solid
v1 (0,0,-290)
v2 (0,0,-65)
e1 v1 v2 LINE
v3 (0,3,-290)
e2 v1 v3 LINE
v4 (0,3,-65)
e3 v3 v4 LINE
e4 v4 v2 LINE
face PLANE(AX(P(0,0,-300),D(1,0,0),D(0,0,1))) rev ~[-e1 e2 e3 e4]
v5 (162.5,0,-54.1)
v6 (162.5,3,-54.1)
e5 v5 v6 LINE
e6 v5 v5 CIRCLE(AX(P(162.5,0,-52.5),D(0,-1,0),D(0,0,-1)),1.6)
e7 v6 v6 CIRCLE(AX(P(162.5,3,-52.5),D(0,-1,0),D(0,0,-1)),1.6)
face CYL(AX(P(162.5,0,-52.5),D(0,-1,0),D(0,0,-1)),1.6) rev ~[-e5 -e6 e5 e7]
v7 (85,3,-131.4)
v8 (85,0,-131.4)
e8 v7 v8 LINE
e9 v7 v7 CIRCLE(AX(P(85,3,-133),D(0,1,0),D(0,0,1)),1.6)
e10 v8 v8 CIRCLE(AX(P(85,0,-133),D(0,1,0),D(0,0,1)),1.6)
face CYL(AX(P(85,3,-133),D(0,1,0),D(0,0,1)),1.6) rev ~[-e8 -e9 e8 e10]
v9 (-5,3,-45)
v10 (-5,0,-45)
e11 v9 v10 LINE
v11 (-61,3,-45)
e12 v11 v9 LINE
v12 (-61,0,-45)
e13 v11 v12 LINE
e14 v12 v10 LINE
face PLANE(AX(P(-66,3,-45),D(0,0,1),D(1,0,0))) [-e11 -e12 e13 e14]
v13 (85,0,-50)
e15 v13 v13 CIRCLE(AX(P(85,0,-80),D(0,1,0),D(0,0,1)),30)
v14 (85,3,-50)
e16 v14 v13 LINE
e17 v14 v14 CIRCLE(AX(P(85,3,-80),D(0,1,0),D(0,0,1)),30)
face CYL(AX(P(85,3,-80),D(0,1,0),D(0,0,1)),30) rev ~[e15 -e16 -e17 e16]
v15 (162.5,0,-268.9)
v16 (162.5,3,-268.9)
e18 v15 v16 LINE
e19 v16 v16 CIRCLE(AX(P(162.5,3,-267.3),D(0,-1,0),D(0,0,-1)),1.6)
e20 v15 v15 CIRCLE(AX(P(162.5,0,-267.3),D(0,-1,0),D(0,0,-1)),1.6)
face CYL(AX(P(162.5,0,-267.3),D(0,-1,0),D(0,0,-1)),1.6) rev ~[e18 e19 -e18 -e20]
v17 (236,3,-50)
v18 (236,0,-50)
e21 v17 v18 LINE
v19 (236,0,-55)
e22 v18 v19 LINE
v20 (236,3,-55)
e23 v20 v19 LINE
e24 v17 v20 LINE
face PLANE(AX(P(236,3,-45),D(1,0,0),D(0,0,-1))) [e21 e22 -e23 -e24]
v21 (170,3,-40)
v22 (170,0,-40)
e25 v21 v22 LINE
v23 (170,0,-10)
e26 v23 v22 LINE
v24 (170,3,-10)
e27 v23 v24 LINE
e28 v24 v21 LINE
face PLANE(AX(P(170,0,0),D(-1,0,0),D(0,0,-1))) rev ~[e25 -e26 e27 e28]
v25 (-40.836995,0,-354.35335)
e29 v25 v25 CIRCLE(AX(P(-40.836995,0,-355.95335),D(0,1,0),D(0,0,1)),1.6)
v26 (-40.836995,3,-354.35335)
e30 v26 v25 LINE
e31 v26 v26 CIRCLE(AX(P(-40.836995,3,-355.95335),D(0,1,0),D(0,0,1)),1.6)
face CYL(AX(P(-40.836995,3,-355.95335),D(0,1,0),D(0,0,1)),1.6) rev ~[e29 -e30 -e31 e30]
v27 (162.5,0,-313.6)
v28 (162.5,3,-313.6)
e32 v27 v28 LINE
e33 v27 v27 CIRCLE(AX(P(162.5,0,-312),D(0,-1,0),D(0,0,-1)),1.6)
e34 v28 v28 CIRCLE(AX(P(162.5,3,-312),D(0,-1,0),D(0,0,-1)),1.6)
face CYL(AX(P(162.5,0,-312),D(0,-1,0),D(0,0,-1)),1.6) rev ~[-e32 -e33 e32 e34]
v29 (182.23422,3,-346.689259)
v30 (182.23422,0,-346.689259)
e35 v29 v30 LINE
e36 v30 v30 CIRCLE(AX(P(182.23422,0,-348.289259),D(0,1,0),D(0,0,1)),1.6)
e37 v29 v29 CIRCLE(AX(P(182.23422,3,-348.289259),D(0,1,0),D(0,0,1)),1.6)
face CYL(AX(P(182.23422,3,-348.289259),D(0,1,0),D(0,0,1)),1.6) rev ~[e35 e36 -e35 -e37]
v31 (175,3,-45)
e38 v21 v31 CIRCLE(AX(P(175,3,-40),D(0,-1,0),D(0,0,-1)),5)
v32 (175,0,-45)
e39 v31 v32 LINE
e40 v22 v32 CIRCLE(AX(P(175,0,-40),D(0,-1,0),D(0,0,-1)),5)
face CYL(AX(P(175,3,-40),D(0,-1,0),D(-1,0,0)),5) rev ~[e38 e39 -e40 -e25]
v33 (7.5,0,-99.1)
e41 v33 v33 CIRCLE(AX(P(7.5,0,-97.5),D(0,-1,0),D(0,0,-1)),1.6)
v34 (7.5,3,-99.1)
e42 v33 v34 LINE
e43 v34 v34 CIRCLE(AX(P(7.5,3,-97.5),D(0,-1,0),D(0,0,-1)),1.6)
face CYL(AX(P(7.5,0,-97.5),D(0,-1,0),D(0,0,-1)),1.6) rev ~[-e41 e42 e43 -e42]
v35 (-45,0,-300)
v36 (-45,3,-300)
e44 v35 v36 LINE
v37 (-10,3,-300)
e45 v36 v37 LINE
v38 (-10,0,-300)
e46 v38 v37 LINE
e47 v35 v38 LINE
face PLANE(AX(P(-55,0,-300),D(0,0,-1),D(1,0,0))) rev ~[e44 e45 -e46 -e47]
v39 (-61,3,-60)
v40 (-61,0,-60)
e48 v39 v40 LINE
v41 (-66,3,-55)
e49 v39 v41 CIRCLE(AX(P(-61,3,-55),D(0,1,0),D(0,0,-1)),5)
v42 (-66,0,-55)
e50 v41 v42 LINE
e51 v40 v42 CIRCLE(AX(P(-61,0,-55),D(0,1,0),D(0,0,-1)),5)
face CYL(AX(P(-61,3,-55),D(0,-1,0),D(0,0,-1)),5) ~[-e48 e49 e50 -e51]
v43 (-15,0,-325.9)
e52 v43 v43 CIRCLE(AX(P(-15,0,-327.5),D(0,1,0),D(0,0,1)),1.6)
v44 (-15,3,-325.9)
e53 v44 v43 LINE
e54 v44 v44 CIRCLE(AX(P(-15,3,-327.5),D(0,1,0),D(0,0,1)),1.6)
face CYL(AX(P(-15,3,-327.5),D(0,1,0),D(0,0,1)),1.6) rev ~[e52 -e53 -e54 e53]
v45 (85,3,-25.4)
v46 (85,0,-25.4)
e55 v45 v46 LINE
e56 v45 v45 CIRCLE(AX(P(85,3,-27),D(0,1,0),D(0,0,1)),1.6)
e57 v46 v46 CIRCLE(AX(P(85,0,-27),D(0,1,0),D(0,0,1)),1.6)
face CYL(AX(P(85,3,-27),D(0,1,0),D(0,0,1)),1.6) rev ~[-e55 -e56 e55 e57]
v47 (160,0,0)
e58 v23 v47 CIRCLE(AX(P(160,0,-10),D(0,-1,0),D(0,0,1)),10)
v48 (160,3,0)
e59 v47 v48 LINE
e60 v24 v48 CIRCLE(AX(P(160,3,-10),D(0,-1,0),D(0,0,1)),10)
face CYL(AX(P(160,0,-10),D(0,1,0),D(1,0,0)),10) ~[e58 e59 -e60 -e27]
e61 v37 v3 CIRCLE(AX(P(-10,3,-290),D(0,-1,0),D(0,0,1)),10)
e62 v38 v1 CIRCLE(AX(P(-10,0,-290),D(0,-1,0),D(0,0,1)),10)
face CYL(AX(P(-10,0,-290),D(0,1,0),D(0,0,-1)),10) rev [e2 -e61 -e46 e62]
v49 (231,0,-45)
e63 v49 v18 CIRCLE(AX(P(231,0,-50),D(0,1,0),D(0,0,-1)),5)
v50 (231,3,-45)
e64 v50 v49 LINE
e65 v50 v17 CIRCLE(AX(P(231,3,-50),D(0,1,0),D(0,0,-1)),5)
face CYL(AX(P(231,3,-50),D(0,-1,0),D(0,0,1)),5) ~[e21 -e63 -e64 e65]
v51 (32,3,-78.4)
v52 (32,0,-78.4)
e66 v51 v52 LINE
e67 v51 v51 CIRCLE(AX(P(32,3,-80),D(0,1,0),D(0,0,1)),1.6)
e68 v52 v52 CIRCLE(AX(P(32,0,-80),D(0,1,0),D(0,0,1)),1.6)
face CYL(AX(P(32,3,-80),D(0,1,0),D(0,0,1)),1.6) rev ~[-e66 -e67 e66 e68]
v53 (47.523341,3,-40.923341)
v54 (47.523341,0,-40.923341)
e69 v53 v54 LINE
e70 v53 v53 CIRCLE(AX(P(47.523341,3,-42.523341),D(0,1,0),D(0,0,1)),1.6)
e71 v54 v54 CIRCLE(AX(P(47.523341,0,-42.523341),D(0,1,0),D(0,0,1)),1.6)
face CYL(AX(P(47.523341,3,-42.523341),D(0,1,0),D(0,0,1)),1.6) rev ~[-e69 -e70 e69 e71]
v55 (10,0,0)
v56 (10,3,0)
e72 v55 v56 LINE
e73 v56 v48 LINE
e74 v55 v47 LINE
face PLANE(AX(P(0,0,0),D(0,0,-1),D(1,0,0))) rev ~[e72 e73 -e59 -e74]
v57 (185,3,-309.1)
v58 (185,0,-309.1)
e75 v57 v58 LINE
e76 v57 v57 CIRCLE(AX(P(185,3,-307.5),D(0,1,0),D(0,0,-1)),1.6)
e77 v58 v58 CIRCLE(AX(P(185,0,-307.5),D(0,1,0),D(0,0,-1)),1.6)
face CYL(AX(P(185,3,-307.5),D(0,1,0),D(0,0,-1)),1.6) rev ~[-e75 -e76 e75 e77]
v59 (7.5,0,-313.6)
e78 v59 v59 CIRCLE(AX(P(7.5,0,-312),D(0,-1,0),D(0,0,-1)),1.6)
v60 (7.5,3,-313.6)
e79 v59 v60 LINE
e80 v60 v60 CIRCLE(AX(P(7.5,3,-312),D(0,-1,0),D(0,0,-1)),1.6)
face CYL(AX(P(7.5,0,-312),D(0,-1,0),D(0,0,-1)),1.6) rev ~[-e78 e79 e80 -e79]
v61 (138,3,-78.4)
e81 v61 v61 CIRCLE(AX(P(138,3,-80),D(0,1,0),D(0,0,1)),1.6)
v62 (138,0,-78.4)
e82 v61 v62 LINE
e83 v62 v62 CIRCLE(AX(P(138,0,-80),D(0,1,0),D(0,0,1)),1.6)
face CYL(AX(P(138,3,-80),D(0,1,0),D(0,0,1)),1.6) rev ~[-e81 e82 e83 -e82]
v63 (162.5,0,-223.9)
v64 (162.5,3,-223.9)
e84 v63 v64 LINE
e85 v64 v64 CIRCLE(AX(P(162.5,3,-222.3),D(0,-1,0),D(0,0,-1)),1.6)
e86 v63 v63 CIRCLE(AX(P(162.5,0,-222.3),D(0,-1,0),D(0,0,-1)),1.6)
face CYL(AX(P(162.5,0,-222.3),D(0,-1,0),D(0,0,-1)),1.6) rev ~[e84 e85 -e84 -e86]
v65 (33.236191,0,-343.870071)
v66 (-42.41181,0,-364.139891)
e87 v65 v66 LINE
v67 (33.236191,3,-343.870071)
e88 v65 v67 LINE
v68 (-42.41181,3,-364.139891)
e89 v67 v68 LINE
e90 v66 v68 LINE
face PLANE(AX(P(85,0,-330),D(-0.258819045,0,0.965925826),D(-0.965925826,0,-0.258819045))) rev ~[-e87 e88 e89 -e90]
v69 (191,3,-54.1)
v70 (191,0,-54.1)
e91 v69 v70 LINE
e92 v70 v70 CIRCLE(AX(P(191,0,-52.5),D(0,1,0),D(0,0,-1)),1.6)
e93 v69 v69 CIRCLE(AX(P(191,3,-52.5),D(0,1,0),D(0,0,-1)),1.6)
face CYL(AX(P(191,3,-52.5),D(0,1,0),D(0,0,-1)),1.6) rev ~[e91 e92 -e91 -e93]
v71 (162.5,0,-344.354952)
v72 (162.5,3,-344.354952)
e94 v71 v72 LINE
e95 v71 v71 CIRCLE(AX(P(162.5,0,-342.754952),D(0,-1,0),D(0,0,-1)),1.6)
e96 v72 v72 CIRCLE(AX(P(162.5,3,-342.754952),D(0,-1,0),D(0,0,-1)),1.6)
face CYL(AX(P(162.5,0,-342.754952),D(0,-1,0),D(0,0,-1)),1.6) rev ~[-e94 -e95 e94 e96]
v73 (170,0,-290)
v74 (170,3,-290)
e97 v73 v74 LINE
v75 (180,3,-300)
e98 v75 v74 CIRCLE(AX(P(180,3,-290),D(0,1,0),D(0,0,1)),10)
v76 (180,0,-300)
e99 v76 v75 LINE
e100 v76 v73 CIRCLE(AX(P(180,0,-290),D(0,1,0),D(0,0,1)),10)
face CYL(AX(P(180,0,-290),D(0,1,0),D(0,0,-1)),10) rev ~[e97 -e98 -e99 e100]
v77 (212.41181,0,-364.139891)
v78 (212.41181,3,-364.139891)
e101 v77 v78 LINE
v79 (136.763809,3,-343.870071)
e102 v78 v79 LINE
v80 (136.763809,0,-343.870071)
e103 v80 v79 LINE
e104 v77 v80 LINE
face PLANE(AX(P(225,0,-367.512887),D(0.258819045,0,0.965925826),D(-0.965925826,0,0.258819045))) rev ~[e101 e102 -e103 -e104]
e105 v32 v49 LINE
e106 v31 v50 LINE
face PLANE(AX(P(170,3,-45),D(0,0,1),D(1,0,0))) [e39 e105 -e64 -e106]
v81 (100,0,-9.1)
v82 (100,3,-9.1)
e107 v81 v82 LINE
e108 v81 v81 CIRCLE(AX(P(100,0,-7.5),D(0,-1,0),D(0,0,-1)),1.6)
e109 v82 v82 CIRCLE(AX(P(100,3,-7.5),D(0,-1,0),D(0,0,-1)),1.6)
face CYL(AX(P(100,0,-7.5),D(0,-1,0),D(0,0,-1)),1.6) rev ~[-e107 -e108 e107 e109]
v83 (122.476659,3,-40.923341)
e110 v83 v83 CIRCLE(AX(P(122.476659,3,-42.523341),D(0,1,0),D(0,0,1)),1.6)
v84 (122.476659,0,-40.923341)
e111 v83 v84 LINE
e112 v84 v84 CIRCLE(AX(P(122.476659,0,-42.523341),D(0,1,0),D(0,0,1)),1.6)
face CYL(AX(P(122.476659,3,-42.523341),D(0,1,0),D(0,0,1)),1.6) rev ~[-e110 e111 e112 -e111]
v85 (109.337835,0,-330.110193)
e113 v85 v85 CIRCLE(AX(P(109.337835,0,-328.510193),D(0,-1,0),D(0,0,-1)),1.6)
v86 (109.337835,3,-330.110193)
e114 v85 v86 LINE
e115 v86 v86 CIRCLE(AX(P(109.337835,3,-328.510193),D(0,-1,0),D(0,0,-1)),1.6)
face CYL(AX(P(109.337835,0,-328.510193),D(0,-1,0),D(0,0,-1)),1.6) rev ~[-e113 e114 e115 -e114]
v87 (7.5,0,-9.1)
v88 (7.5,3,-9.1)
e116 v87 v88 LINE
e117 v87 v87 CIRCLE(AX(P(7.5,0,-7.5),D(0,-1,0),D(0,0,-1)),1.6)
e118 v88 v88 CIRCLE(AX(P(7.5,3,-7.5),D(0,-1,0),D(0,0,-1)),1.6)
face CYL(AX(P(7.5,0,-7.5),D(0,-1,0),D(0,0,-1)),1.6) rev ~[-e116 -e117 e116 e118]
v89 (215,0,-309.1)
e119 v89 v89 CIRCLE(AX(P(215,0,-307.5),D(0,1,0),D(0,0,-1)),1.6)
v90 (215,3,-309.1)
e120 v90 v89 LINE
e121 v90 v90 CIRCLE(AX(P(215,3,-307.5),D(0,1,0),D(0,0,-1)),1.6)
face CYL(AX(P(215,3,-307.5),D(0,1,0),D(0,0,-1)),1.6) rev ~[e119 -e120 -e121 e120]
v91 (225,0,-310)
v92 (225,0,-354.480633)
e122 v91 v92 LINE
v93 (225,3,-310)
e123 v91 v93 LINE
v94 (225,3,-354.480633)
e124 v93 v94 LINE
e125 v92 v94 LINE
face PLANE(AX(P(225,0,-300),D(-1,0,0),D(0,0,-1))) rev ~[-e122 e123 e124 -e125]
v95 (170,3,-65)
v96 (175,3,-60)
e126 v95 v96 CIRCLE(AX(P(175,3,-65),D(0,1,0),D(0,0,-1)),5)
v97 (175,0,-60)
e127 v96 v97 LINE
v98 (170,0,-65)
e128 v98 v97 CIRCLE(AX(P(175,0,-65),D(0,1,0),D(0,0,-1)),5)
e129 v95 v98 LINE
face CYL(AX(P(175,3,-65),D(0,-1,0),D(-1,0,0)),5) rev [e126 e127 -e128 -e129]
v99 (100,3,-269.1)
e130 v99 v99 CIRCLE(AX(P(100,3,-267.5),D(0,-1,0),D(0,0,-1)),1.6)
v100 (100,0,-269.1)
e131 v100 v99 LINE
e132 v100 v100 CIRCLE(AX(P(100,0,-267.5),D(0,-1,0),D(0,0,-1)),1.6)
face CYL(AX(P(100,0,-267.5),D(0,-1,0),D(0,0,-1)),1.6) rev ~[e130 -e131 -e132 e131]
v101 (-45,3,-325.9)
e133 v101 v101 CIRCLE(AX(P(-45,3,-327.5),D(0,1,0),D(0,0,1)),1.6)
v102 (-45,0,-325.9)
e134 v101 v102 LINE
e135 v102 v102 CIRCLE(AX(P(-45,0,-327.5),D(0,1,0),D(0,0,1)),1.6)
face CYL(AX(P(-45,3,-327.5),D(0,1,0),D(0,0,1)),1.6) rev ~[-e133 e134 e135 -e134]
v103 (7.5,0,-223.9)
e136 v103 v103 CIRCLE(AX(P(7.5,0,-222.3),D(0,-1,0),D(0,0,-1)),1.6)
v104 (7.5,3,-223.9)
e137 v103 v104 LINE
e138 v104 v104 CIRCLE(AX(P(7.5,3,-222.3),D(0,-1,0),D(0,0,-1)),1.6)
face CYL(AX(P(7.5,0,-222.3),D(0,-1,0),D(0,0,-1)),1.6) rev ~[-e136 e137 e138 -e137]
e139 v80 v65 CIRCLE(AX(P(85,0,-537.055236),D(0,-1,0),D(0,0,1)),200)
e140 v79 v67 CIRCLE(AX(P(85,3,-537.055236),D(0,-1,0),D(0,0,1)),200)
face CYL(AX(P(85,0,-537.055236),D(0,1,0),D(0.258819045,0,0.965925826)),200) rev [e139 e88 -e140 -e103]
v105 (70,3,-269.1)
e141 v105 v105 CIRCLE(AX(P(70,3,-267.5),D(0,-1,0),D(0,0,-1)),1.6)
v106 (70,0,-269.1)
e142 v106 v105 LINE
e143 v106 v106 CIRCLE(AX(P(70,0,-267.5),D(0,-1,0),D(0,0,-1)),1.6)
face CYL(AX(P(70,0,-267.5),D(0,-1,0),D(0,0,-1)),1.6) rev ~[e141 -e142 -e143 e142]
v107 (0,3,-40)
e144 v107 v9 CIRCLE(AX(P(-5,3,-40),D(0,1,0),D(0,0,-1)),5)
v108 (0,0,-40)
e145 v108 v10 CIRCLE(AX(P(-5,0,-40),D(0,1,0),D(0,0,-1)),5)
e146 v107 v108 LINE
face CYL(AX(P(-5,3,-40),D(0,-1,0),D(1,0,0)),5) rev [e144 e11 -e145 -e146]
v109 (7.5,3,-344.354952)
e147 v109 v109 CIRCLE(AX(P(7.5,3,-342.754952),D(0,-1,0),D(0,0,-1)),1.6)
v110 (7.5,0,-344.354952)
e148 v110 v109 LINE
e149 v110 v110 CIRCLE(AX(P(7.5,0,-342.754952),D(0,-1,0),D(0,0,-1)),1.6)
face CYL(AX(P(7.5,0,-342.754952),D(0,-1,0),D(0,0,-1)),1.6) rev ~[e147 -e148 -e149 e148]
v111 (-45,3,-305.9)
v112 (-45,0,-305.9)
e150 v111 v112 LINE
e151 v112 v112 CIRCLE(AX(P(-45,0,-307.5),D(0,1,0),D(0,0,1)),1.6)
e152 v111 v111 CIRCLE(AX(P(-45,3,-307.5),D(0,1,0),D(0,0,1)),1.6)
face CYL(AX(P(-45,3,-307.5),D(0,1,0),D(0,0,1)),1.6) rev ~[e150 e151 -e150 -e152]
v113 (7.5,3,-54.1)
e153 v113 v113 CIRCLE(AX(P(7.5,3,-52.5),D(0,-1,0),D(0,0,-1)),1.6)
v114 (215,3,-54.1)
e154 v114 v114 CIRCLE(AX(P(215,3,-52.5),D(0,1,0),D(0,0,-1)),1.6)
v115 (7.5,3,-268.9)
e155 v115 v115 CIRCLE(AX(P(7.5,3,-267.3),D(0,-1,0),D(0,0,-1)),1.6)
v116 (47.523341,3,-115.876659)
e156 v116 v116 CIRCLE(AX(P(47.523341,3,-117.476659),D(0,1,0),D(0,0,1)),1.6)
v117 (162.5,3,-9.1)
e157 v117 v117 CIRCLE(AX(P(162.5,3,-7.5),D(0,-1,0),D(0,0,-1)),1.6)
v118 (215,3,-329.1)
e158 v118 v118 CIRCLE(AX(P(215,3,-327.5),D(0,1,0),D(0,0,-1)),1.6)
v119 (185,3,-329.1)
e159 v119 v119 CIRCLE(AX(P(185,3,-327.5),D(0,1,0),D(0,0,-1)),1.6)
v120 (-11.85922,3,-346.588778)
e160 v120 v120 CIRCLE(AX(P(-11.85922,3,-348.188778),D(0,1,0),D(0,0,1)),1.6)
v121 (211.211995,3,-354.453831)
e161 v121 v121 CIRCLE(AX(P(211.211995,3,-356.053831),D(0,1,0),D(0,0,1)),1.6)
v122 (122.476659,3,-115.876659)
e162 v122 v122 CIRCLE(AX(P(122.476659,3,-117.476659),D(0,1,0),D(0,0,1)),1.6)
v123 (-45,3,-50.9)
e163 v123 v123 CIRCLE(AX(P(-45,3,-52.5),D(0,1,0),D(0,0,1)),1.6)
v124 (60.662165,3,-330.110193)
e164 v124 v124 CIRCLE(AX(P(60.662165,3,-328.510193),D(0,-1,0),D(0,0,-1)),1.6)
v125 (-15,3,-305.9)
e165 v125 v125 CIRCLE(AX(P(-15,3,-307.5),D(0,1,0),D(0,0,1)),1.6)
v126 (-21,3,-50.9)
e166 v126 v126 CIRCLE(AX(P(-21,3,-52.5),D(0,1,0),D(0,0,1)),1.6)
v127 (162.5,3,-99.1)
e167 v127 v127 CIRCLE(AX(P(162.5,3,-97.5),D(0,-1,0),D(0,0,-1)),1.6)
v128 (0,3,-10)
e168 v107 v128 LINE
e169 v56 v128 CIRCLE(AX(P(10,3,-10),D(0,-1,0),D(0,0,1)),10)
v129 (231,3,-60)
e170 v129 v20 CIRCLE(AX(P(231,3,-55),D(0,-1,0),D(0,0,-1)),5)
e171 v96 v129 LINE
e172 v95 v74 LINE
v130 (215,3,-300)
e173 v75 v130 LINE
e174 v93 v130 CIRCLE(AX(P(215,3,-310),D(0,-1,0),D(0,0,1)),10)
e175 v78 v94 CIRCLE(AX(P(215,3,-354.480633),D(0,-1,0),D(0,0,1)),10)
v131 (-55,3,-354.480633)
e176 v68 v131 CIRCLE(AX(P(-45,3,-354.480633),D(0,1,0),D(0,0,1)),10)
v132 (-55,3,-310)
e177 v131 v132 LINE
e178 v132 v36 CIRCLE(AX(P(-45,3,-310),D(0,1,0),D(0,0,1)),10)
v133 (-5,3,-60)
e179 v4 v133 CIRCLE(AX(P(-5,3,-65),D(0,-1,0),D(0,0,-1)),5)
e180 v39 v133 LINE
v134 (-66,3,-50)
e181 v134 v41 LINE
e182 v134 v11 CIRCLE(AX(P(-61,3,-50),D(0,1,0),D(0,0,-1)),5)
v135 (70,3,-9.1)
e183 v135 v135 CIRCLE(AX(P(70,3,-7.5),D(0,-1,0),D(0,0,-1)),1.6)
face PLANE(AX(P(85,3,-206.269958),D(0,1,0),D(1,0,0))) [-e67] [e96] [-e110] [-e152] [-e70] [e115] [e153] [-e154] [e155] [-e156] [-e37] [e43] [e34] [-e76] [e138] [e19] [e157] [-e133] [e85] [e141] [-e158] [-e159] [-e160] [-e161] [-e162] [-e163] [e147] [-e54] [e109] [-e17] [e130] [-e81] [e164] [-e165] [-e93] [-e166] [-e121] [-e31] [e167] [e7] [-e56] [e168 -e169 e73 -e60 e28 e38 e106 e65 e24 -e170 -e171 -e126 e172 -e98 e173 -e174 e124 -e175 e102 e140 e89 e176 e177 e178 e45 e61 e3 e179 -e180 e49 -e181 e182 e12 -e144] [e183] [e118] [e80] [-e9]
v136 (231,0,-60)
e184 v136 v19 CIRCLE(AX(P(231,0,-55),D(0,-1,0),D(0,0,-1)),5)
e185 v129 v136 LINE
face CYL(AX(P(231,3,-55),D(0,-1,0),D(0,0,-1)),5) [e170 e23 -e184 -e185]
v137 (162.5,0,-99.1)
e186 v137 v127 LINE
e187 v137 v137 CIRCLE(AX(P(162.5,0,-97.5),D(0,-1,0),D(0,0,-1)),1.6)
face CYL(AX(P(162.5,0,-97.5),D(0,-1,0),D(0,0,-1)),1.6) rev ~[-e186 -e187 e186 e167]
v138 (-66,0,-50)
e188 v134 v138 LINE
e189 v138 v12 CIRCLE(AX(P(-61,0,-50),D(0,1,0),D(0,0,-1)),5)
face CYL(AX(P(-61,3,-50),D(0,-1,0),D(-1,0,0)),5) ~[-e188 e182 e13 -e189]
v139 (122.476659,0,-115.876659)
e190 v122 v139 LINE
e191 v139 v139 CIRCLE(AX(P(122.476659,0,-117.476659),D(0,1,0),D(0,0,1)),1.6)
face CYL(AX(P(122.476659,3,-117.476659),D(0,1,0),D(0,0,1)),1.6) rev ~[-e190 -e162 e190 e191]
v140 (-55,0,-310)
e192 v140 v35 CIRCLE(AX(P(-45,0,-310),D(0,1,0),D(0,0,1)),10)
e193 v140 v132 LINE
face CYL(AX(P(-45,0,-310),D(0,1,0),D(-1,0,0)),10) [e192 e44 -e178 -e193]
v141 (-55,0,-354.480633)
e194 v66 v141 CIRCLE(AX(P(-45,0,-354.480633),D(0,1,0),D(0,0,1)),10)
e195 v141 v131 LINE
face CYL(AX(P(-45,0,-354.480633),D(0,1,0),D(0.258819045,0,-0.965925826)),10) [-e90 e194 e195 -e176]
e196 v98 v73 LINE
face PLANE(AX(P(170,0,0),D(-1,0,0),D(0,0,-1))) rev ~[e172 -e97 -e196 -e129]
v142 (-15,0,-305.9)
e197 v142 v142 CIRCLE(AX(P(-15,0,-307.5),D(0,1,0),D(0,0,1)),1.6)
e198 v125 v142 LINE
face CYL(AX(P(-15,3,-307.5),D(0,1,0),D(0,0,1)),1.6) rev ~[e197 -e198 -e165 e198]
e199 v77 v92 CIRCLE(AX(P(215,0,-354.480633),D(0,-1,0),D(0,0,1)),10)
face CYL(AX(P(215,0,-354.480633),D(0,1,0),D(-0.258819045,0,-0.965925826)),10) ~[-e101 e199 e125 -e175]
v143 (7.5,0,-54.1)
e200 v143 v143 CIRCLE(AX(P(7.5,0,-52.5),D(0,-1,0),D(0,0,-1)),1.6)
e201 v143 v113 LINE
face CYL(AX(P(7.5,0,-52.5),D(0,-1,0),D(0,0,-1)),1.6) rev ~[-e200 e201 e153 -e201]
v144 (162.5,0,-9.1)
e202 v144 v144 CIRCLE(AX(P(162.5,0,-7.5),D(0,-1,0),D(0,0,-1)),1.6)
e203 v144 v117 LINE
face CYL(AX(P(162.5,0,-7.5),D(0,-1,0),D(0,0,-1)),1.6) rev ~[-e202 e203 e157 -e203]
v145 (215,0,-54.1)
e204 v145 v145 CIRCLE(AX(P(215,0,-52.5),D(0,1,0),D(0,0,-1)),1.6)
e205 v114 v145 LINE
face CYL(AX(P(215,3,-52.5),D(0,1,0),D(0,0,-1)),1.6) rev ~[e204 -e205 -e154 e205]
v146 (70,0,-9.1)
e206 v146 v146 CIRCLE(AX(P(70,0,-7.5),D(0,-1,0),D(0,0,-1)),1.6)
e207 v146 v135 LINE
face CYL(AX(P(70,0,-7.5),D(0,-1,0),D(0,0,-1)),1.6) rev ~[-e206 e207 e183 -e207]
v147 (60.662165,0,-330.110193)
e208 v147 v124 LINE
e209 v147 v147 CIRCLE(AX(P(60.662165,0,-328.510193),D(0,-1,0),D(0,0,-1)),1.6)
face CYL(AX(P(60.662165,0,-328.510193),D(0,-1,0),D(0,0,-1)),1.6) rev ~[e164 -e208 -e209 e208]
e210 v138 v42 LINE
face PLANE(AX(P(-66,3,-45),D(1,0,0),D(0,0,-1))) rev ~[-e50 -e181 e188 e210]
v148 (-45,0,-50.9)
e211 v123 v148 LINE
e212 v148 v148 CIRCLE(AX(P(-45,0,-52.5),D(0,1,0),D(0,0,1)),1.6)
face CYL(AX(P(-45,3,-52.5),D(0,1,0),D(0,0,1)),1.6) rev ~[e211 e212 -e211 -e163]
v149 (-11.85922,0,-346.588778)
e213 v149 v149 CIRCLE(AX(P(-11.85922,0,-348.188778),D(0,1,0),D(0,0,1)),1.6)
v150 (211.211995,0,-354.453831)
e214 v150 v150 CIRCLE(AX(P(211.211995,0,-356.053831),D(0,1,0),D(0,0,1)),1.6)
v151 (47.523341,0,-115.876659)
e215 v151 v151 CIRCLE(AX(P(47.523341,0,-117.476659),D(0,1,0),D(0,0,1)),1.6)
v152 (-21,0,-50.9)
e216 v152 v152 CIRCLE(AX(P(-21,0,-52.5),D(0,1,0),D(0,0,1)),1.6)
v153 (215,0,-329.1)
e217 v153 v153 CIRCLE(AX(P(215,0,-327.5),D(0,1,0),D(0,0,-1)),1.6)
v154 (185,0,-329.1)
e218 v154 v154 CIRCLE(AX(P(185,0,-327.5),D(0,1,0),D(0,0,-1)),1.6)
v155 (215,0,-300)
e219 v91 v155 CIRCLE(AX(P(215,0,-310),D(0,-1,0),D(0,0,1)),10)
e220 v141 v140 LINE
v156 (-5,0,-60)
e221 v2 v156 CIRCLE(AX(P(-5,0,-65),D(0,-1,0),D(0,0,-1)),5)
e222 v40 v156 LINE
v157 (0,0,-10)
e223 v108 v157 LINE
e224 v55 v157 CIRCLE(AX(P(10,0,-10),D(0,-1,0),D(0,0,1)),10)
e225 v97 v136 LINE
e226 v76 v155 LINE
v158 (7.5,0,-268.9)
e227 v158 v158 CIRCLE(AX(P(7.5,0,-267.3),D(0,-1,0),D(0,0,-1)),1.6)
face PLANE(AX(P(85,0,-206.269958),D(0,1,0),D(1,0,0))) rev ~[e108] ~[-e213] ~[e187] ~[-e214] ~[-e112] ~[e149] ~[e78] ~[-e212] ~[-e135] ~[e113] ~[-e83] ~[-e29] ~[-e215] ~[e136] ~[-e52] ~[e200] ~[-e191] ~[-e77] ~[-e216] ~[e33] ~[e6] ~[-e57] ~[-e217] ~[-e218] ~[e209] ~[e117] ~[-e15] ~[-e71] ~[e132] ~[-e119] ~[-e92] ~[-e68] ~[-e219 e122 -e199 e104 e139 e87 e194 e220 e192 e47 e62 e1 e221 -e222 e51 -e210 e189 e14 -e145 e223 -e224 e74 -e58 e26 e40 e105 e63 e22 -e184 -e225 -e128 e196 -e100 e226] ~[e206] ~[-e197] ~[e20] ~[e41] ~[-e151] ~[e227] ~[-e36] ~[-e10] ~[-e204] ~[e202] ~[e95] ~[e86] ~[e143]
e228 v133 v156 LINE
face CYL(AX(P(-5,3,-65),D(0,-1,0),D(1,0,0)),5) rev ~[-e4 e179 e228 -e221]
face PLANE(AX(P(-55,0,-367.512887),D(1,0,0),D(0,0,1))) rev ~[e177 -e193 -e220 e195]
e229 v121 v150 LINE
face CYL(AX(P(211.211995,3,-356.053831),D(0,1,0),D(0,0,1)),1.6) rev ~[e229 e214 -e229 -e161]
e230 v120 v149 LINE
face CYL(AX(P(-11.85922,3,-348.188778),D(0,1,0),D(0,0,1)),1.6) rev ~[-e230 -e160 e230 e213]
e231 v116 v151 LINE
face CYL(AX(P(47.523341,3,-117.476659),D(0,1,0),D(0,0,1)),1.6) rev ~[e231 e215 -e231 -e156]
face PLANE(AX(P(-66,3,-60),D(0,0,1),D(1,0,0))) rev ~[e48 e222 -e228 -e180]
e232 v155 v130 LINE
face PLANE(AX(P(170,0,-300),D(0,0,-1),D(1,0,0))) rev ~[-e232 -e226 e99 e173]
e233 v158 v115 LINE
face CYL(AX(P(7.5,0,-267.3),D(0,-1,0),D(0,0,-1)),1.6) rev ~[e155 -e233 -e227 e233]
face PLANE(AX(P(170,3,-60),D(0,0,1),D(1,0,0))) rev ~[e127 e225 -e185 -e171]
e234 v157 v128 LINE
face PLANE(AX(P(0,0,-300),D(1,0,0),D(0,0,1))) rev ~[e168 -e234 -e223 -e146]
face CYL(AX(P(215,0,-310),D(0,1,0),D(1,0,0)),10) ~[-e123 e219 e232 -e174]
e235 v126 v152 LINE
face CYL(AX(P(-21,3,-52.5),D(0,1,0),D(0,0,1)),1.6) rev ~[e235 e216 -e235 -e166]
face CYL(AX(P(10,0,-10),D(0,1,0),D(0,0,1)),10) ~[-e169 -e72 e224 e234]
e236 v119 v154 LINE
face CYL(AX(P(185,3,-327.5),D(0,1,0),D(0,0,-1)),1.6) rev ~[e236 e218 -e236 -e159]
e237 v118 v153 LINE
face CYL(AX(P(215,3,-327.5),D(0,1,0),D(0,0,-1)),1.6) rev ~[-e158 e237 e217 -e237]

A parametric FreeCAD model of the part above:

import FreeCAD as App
import Part
import Sketcher
Q = App.Units.Quantity


def edges_at(feature, points):
    """Names of the edges that pass closest to the given points."""
    edges = feature.Shape.Edges
    near = lambda p: min(range(len(edges)), key=lambda i: edges[i].distToShape(Part.Vertex(*p))[0])
    return sorted({f"Edge{near(p) + 1}" for p in points})

doc = App.newDocument("Part")
body = doc.addObject("PartDesign::Body", "Body")

# Sketch on XZ plane
sketch1 = body.newObject("Sketcher::SketchObject", "Sketch")
sketch1.AttachmentSupport = (doc.getObject("XZ_Plane"), [""])
sketch1.MapMode = "FlatFace"
sketch1.addGeometry(Part.LineSegment(App.Vector(0, 0, 0), App.Vector(170, 0, 0)), False)
sketch1.addGeometry(Part.LineSegment(App.Vector(170, 0, 0), App.Vector(170, -300, 0)), False)
sketch1.addGeometry(Part.LineSegment(App.Vector(170, -300, 0), App.Vector(225, -300, 0)), False)
sketch1.addGeometry(Part.LineSegment(App.Vector(225, -300, 0), App.Vector(225, -367.512887, 0)), False)
sketch1.addGeometry(Part.LineSegment(App.Vector(225, -367.512887, 0), App.Vector(85, -330, 0)), False)
sketch1.addGeometry(Part.LineSegment(App.Vector(85, -330, 0), App.Vector(-55, -367.512887, 0)), False)
sketch1.addGeometry(Part.LineSegment(App.Vector(-55, -367.512887, 0), App.Vector(-55, -300, 0)), False)
sketch1.addGeometry(Part.LineSegment(App.Vector(-55, -300, 0), App.Vector(0, -300, 0)), False)
sketch1.addGeometry(Part.LineSegment(App.Vector(0, -300, 0), App.Vector(0, 0, 0)), False)
sketch1.addConstraint(Sketcher.Constraint("Coincident", 0, 2, 1, 1))
sketch1.addConstraint(Sketcher.Constraint("Coincident", 1, 2, 2, 1))
sketch1.addConstraint(Sketcher.Constraint("Coincident", 2, 2, 3, 1))
sketch1.addConstraint(Sketcher.Constraint("Coincident", 3, 2, 4, 1))
sketch1.addConstraint(Sketcher.Constraint("Coincident", 4, 2, 5, 1))
sketch1.addConstraint(Sketcher.Constraint("Coincident", 5, 2, 6, 1))
sketch1.addConstraint(Sketcher.Constraint("Coincident", 6, 2, 7, 1))
sketch1.addConstraint(Sketcher.Constraint("Coincident", 7, 2, 8, 1))
sketch1.addConstraint(Sketcher.Constraint("Coincident", 8, 2, 0, 1))
sketch1.addConstraint(Sketcher.Constraint("Horizontal", 0))
sketch1.addConstraint(Sketcher.Constraint("Vertical", 1))
sketch1.addConstraint(Sketcher.Constraint("Horizontal", 2))
sketch1.addConstraint(Sketcher.Constraint("Vertical", 3))
sketch1.addConstraint(Sketcher.Constraint("Vertical", 6))
sketch1.addConstraint(Sketcher.Constraint("Horizontal", 7))
sketch1.addConstraint(Sketcher.Constraint("Vertical", 8))
sketch1.addConstraint(Sketcher.Constraint("Coincident", 8, 2, -1, 1))
sketch1.addConstraint(Sketcher.Constraint("Horizontal", 3, 2, 5, 2))
sketch1.addConstraint(Sketcher.Constraint("Horizontal", 2, 2, 6, 2))
sketch1.addConstraint(Sketcher.Constraint("Equal", 2, 7))
sketch1.addConstraint(Sketcher.Constraint("Equal", 4, 5))
sketch1.addConstraint(Sketcher.Constraint("DistanceX", 0, 1, 0, 2, Q("170 mm")))
sketch1.addConstraint(Sketcher.Constraint("DistanceX", 2, 1, 2, 2, Q("55 mm")))
sketch1.addConstraint(Sketcher.Constraint("DistanceY", 1, 2, 1, 1, Q("300 mm")))
sketch1.addConstraint(Sketcher.Constraint("Angle", 4, Q("165 deg")))
sketch1.addConstraint(Sketcher.Constraint("DistanceY", 4, 2, -1, 1, Q("330 mm")))
pad1 = body.newObject("PartDesign::Pad", "Pad")
pad1.Profile = sketch1
pad1.Length = 3
pad1.Reversed = True
doc.recompute()

fillet = body.newObject("PartDesign::Fillet", "Fillet")
fillet.Base = (pad1, edges_at(pad1, [(85, 1.5, -330)]))
fillet.Radius = 200
doc.recompute()

fillet2 = body.newObject("PartDesign::Fillet", "Fillet001")
fillet2.Base = (fillet, edges_at(fillet, [
    (0, 1.5, -300),
    (-55, 1.5, -300),
    (-55, 1.5, -367.513),
    (225, 1.5, -367.513),
    (225, 1.5, -300),
    (170, 1.5, -300),
    (170, 1.5, 0),
    (0, 1.5, 0),
]))
fillet2.Radius = 10

# Sketch on XZ plane
sketch2 = body.newObject("Sketcher::SketchObject", "Sketch001")
sketch2.AttachmentSupport = (doc.getObject("XZ_Plane"), [""])
sketch2.MapMode = "FlatFace"
sketch2.AttachmentOffset = App.Placement(App.Vector(0, 0, -3), App.Rotation())
sketch2.addGeometry(Part.Circle(App.Vector(85, -80, 0), App.Vector(0, 0, 1), 30), False)
sketch2.addConstraint(Sketcher.Constraint("Diameter", 0, Q("60 mm")))
sketch2.addConstraint(Sketcher.Constraint("DistanceX", -1, 1, 0, 3, Q("85 mm")))
sketch2.addConstraint(Sketcher.Constraint("DistanceY", 0, 3, -1, 1, Q("80 mm")))
pocket1 = body.newObject("PartDesign::Pocket", "Pocket")
pocket1.Profile = sketch2
pocket1.Type = "ThroughAll"
pocket1.Reversed = True

# Sketch on XZ plane
sketch3 = body.newObject("Sketcher::SketchObject", "Sketch002")
sketch3.AttachmentSupport = (doc.getObject("XZ_Plane"), [""])
sketch3.MapMode = "FlatFace"
sketch3.AttachmentOffset = App.Placement(App.Vector(0, 0, -3), App.Rotation())
sketch3.addGeometry(Part.LineSegment(App.Vector(-66, -60, 0), App.Vector(-66, -45, 0)), False)
sketch3.addGeometry(Part.LineSegment(App.Vector(-66, -45, 0), App.Vector(0, -45, 0)), False)
sketch3.addGeometry(Part.LineSegment(App.Vector(0, -45, 0), App.Vector(0, -60, 0)), False)
sketch3.addGeometry(Part.LineSegment(App.Vector(0, -60, 0), App.Vector(-66, -60, 0)), False)
sketch3.addGeometry(Part.Circle(App.Vector(-45, -52.5, 0), App.Vector(0, 0, 1), 1.6), False)
sketch3.addGeometry(Part.Circle(App.Vector(-21, -52.5, 0), App.Vector(0, 0, 1), 1.6), False)
sketch3.addGeometry(Part.LineSegment(App.Vector(170, -60, 0), App.Vector(170, -45, 0)), False)
sketch3.addGeometry(Part.LineSegment(App.Vector(170, -45, 0), App.Vector(236, -45, 0)), False)
sketch3.addGeometry(Part.LineSegment(App.Vector(236, -45, 0), App.Vector(236, -60, 0)), False)
sketch3.addGeometry(Part.LineSegment(App.Vector(236, -60, 0), App.Vector(170, -60, 0)), False)
sketch3.addGeometry(Part.Circle(App.Vector(191, -52.5, 0), App.Vector(0, 0, 1), 1.6), False)
sketch3.addGeometry(Part.Circle(App.Vector(215, -52.5, 0), App.Vector(0, 0, 1), 1.6), False)
sketch3.addConstraint(Sketcher.Constraint("Coincident", 0, 2, 1, 1))
sketch3.addConstraint(Sketcher.Constraint("Coincident", 1, 2, 2, 1))
sketch3.addConstraint(Sketcher.Constraint("Coincident", 2, 2, 3, 1))
sketch3.addConstraint(Sketcher.Constraint("Coincident", 3, 2, 0, 1))
sketch3.addConstraint(Sketcher.Constraint("Coincident", 6, 2, 7, 1))
sketch3.addConstraint(Sketcher.Constraint("Coincident", 7, 2, 8, 1))
sketch3.addConstraint(Sketcher.Constraint("Coincident", 8, 2, 9, 1))
sketch3.addConstraint(Sketcher.Constraint("Coincident", 9, 2, 6, 1))
sketch3.addConstraint(Sketcher.Constraint("Vertical", 0))
sketch3.addConstraint(Sketcher.Constraint("Horizontal", 1))
sketch3.addConstraint(Sketcher.Constraint("Vertical", 2))
sketch3.addConstraint(Sketcher.Constraint("Horizontal", 3))
sketch3.addConstraint(Sketcher.Constraint("Vertical", 6))
sketch3.addConstraint(Sketcher.Constraint("Horizontal", 7))
sketch3.addConstraint(Sketcher.Constraint("Vertical", 8))
sketch3.addConstraint(Sketcher.Constraint("Horizontal", 9))
sketch3.addConstraint(Sketcher.Constraint("Equal", 4, 5))
sketch3.addConstraint(Sketcher.Constraint("Equal", 5, 10))
sketch3.addConstraint(Sketcher.Constraint("Equal", 10, 11))
sketch3.addConstraint(Sketcher.Constraint("PointOnObject", 1, 2, -2))
sketch3.addConstraint(Sketcher.Constraint("Horizontal", 4, 3, 5, 3))
sketch3.addConstraint(Sketcher.Constraint("Horizontal", 5, 3, 10, 3))
sketch3.addConstraint(Sketcher.Constraint("Horizontal", 10, 3, 11, 3))
sketch3.addConstraint(Sketcher.Constraint("Horizontal", 1, 2, 6, 2))
sketch3.addConstraint(Sketcher.Constraint("Horizontal", 3, 2, 8, 2))
sketch3.addConstraint(Sketcher.Constraint("Equal", 3, 7))
sketch3.addConstraint(Sketcher.Constraint("Diameter", 4, Q("3.2 mm")))
sketch3.addConstraint(Sketcher.Constraint("DistanceX", 1, 1, 1, 2, Q("66 mm")))
sketch3.addConstraint(Sketcher.Constraint("DistanceY", 0, 1, 0, 2, Q("15 mm")))
sketch3.addConstraint(Sketcher.Constraint("DistanceX", 4, 3, -1, 1, Q("45 mm")))
sketch3.addConstraint(Sketcher.Constraint("DistanceX", 5, 3, -1, 1, Q("21 mm")))
sketch3.addConstraint(Sketcher.Constraint("DistanceX", -1, 1, 10, 3, Q("191 mm")))
sketch3.addConstraint(Sketcher.Constraint("DistanceX", -1, 1, 11, 3, Q("215 mm")))
sketch3.addConstraint(Sketcher.Constraint("DistanceY", 0, 2, -1, 1, Q("45 mm")))
sketch3.addConstraint(Sketcher.Constraint("DistanceX", -1, 1, 6, 2, Q("170 mm")))
sketch3.addConstraint(Sketcher.Constraint("DistanceY", 4, 3, -1, 1, Q("52.5 mm")))
pad2 = body.newObject("PartDesign::Pad", "Pad001")
pad2.Profile = sketch3
pad2.Length = 3
doc.recompute()

fillet3 = body.newObject("PartDesign::Fillet", "Fillet002")
fillet3.Base = (pad2, edges_at(pad2, [
    (0, 1.5, -60),
    (0, 1.5, -45),
    (-66, 1.5, -45),
    (-66, 1.5, -60),
    (170, 1.5, -45),
    (170, 1.5, -60),
    (236, 1.5, -60),
    (236, 1.5, -45),
]))
fillet3.Radius = 5

# Sketch on XZ plane
sketch4 = body.newObject("Sketcher::SketchObject", "Sketch003")
sketch4.AttachmentSupport = (doc.getObject("XZ_Plane"), [""])
sketch4.MapMode = "FlatFace"
sketch4.addGeometry(Part.Circle(App.Vector(162.5, -7.5, 0), App.Vector(0, 0, 1), 1.6), False)
sketch4.addGeometry(Part.Circle(App.Vector(162.5, -52.5, 0), App.Vector(0, 0, 1), 1.6), False)
sketch4.addGeometry(Part.Circle(App.Vector(100, -7.5, 0), App.Vector(0, 0, 1), 1.6), False)
sketch4.addGeometry(Part.Circle(App.Vector(70, -7.5, 0), App.Vector(0, 0, 1), 1.6), False)
sketch4.addGeometry(Part.Circle(App.Vector(162.5, -97.5, 0), App.Vector(0, 0, 1), 1.6), False)
sketch4.addGeometry(Part.Circle(App.Vector(162.5, -222.3, 0), App.Vector(0, 0, 1), 1.6), False)
sketch4.addGeometry(Part.Circle(App.Vector(162.5, -267.3, 0), App.Vector(0, 0, 1), 1.6), False)
sketch4.addGeometry(Part.Circle(App.Vector(162.5, -312, 0), App.Vector(0, 0, 1), 1.6), False)
sketch4.addGeometry(Part.Circle(App.Vector(162.5, -342.8, 0), App.Vector(0, 0, 1), 1.6), False)
sketch4.addGeometry(Part.Circle(App.Vector(109.3, -328.5, 0), App.Vector(0, 0, 1), 1.6), False)
sketch4.addGeometry(Part.Circle(App.Vector(60.7, -328.5, 0), App.Vector(0, 0, 1), 1.6), False)
sketch4.addGeometry(Part.Circle(App.Vector(7.5, -342.8, 0), App.Vector(0, 0, 1), 1.6), False)
sketch4.addGeometry(Part.Circle(App.Vector(7.5, -312, 0), App.Vector(0, 0, 1), 1.6), False)
sketch4.addGeometry(Part.Circle(App.Vector(7.5, -267.3, 0), App.Vector(0, 0, 1), 1.6), False)
sketch4.addGeometry(Part.Circle(App.Vector(7.5, -222.3, 0), App.Vector(0, 0, 1), 1.6), False)
sketch4.addGeometry(Part.Circle(App.Vector(7.5, -97.5, 0), App.Vector(0, 0, 1), 1.6), False)
sketch4.addGeometry(Part.Circle(App.Vector(7.5, -52.5, 0), App.Vector(0, 0, 1), 1.6), False)
sketch4.addGeometry(Part.Circle(App.Vector(7.5, -7.5, 0), App.Vector(0, 0, 1), 1.6), False)
sketch4.addGeometry(Part.Circle(App.Vector(70, -267.5, 0), App.Vector(0, 0, 1), 1.6), False)
sketch4.addGeometry(Part.Circle(App.Vector(100, -267.5, 0), App.Vector(0, 0, 1), 1.6), False)
sketch4.addConstraint(Sketcher.Constraint("Equal", 0, 1))
sketch4.addConstraint(Sketcher.Constraint("Equal", 1, 2))
sketch4.addConstraint(Sketcher.Constraint("Equal", 2, 3))
sketch4.addConstraint(Sketcher.Constraint("Equal", 3, 4))
sketch4.addConstraint(Sketcher.Constraint("Equal", 4, 5))
sketch4.addConstraint(Sketcher.Constraint("Equal", 5, 6))
sketch4.addConstraint(Sketcher.Constraint("Equal", 6, 7))
sketch4.addConstraint(Sketcher.Constraint("Equal", 7, 8))
sketch4.addConstraint(Sketcher.Constraint("Equal", 8, 9))
sketch4.addConstraint(Sketcher.Constraint("Equal", 9, 10))
sketch4.addConstraint(Sketcher.Constraint("Equal", 10, 11))
sketch4.addConstraint(Sketcher.Constraint("Equal", 11, 12))
sketch4.addConstraint(Sketcher.Constraint("Equal", 12, 13))
sketch4.addConstraint(Sketcher.Constraint("Equal", 13, 14))
sketch4.addConstraint(Sketcher.Constraint("Equal", 14, 15))
sketch4.addConstraint(Sketcher.Constraint("Equal", 15, 16))
sketch4.addConstraint(Sketcher.Constraint("Equal", 16, 17))
sketch4.addConstraint(Sketcher.Constraint("Equal", 17, 18))
sketch4.addConstraint(Sketcher.Constraint("Equal", 18, 19))
sketch4.addConstraint(Sketcher.Constraint("Horizontal", 0, 3, 2, 3))
sketch4.addConstraint(Sketcher.Constraint("Horizontal", 2, 3, 3, 3))
sketch4.addConstraint(Sketcher.Constraint("Horizontal", 9, 3, 10, 3))
sketch4.addConstraint(Sketcher.Constraint("Horizontal", 8, 3, 11, 3))
sketch4.addConstraint(Sketcher.Constraint("Horizontal", 7, 3, 12, 3))
sketch4.addConstraint(Sketcher.Constraint("Horizontal", 6, 3, 13, 3))
sketch4.addConstraint(Sketcher.Constraint("Horizontal", 5, 3, 14, 3))
sketch4.addConstraint(Sketcher.Constraint("Horizontal", 4, 3, 15, 3))
sketch4.addConstraint(Sketcher.Constraint("Horizontal", 1, 3, 16, 3))
sketch4.addConstraint(Sketcher.Constraint("Horizontal", 3, 3, 17, 3))
sketch4.addConstraint(Sketcher.Constraint("Horizontal", 18, 3, 19, 3))
sketch4.addConstraint(Sketcher.Constraint("Vertical", 0, 3, 1, 3))
sketch4.addConstraint(Sketcher.Constraint("Vertical", 1, 3, 4, 3))
sketch4.addConstraint(Sketcher.Constraint("Vertical", 4, 3, 5, 3))
sketch4.addConstraint(Sketcher.Constraint("Vertical", 5, 3, 6, 3))
sketch4.addConstraint(Sketcher.Constraint("Vertical", 6, 3, 7, 3))
sketch4.addConstraint(Sketcher.Constraint("Vertical", 7, 3, 8, 3))
sketch4.addConstraint(Sketcher.Constraint("Vertical", 11, 3, 12, 3))
sketch4.addConstraint(Sketcher.Constraint("Vertical", 12, 3, 13, 3))
sketch4.addConstraint(Sketcher.Constraint("Vertical", 13, 3, 14, 3))
sketch4.addConstraint(Sketcher.Constraint("Vertical", 14, 3, 15, 3))
sketch4.addConstraint(Sketcher.Constraint("Vertical", 15, 3, 16, 3))
sketch4.addConstraint(Sketcher.Constraint("Vertical", 16, 3, 17, 3))
sketch4.addConstraint(Sketcher.Constraint("Vertical", 3, 3, 18, 3))
sketch4.addConstraint(Sketcher.Constraint("Vertical", 2, 3, 19, 3))
sketch4.addConstraint(Sketcher.Constraint("Diameter", 0, Q("3.2 mm")))
sketch4.addConstraint(Sketcher.Constraint("DistanceX", -1, 1, 2, 3, Q("100 mm")))
sketch4.addConstraint(Sketcher.Constraint("DistanceX", -1, 1, 3, 3, Q("70 mm")))
sketch4.addConstraint(Sketcher.Constraint("DistanceY", 7, 3, -1, 1, Q("312 mm")))
sketch4.addConstraint(Sketcher.Constraint("DistanceY", 1, 3, 0, 3, Q("45 mm")))
sketch4.addConstraint(Sketcher.Constraint("DistanceY", 4, 3, 1, 3, Q("45 mm")))
sketch4.addConstraint(Sketcher.Constraint("DistanceY", 6, 3, 5, 3, Q("45 mm")))
sketch4.addConstraint(Sketcher.Constraint("DistanceX", 11, 3, 8, 3, Q("155 mm")))
sketch4.addConstraint(Sketcher.Constraint("DistanceX", -1, 1, 0, 3, Q("162.5 mm")))
sketch4.addConstraint(Sketcher.Constraint("DistanceY", 0, 3, -1, 1, Q("7.5 mm")))
sketch4.addConstraint(Sketcher.Constraint("DistanceY", 5, 3, -1, 1, Q("222.3 mm")))
sketch4.addConstraint(Sketcher.Constraint("DistanceY", 18, 3, -1, 1, Q("267.5 mm")))
sketch4.addConstraint(Sketcher.Constraint("DistanceY", 8, 3, 9, 3, Q("14.244759 mm")))
sketch4.addConstraint(Sketcher.Constraint("DistanceX", 10, 3, 9, 3, Q("48.675671 mm")))
sketch4.addConstraint(Sketcher.Constraint("DistanceY", 8, 3, -1, 1, Q("342.754952 mm")))
sketch4.addConstraint(Sketcher.Constraint("DistanceX", -1, 1, 9, 3, Q("109.337835 mm")))
pocket2 = body.newObject("PartDesign::Pocket", "Pocket001")
pocket2.Profile = sketch4
pocket2.Type = "ThroughAll"

# Sketch on XZ plane
sketch5 = body.newObject("Sketcher::SketchObject", "Sketch004")
sketch5.AttachmentSupport = (doc.getObject("XZ_Plane"), [""])
sketch5.MapMode = "FlatFace"
sketch5.AttachmentOffset = App.Placement(App.Vector(0, 0, -3), App.Rotation())
sketch5.addGeometry(Part.Circle(App.Vector(-40.8, -356, 0), App.Vector(0, 0, 1), 1.6), False)
sketch5.addGeometry(Part.Circle(App.Vector(-11.9, -348.2, 0), App.Vector(0, 0, 1), 1.6), False)
sketch5.addGeometry(Part.Circle(App.Vector(182.2, -348.3, 0), App.Vector(0, 0, 1), 1.6), False)
sketch5.addGeometry(Part.Circle(App.Vector(211.2, -356.1, 0), App.Vector(0, 0, 1), 1.6), False)
sketch5.addConstraint(Sketcher.Constraint("Equal", 0, 1))
sketch5.addConstraint(Sketcher.Constraint("Equal", 1, 2))
sketch5.addConstraint(Sketcher.Constraint("Equal", 2, 3))
sketch5.addConstraint(Sketcher.Constraint("Diameter", 0, Q("3.2 mm")))
sketch5.addConstraint(Sketcher.Constraint("DistanceY", 0, 3, -1, 1, Q("355.95335 mm")))
sketch5.addConstraint(Sketcher.Constraint("DistanceX", 1, 3, -1, 1, Q("11.85922 mm")))
sketch5.addConstraint(Sketcher.Constraint("DistanceY", 1, 3, -1, 1, Q("348.188778 mm")))
sketch5.addConstraint(Sketcher.Constraint("DistanceX", -1, 1, 2, 3, Q("182.23422 mm")))
sketch5.addConstraint(Sketcher.Constraint("DistanceY", 2, 3, -1, 1, Q("348.289259 mm")))
sketch5.addConstraint(Sketcher.Constraint("DistanceY", 3, 3, -1, 1, Q("356.053831 mm")))
sketch5.addConstraint(Sketcher.Constraint("DistanceX", 0, 3, 3, 3, Q("252.04899 mm")))
sketch5.addConstraint(Sketcher.Constraint("DistanceX", 0, 3, -1, 1, Q("40.836995 mm")))
pocket3 = body.newObject("PartDesign::Pocket", "Pocket002")
pocket3.Profile = sketch5
pocket3.Type = "ThroughAll"
pocket3.Reversed = True

# Sketch on XZ plane
sketch6 = body.newObject("Sketcher::SketchObject", "Sketch005")
sketch6.AttachmentSupport = (doc.getObject("XZ_Plane"), [""])
sketch6.MapMode = "FlatFace"
sketch6.AttachmentOffset = App.Placement(App.Vector(0, 0, -3), App.Rotation())
sketch6.addGeometry(Part.Circle(App.Vector(-45, -327.5, 0), App.Vector(0, 0, 1), 1.6), False)
sketch6.addGeometry(Part.Circle(App.Vector(-45, -307.5, 0), App.Vector(0, 0, 1), 1.6), False)
sketch6.addGeometry(Part.Circle(App.Vector(-15, -327.5, 0), App.Vector(0, 0, 1), 1.6), False)
sketch6.addGeometry(Part.Circle(App.Vector(-15, -307.5, 0), App.Vector(0, 0, 1), 1.6), False)
sketch6.addGeometry(Part.Circle(App.Vector(185, -327.5, 0), App.Vector(0, 0, 1), 1.6), False)
sketch6.addGeometry(Part.Circle(App.Vector(185, -307.5, 0), App.Vector(0, 0, 1), 1.6), False)
sketch6.addGeometry(Part.Circle(App.Vector(215, -307.5, 0), App.Vector(0, 0, 1), 1.6), False)
sketch6.addGeometry(Part.Circle(App.Vector(215, -327.5, 0), App.Vector(0, 0, 1), 1.6), False)
sketch6.addConstraint(Sketcher.Constraint("Equal", 0, 1))
sketch6.addConstraint(Sketcher.Constraint("Equal", 1, 2))
sketch6.addConstraint(Sketcher.Constraint("Equal", 2, 3))
sketch6.addConstraint(Sketcher.Constraint("Equal", 3, 4))
sketch6.addConstraint(Sketcher.Constraint("Equal", 4, 5))
sketch6.addConstraint(Sketcher.Constraint("Equal", 5, 6))
sketch6.addConstraint(Sketcher.Constraint("Equal", 6, 7))
sketch6.addConstraint(Sketcher.Constraint("Horizontal", 0, 3, 2, 3))
sketch6.addConstraint(Sketcher.Constraint("Horizontal", 1, 3, 3, 3))
sketch6.addConstraint(Sketcher.Constraint("Horizontal", 2, 3, 4, 3))
sketch6.addConstraint(Sketcher.Constraint("Horizontal", 3, 3, 5, 3))
sketch6.addConstraint(Sketcher.Constraint("Horizontal", 5, 3, 6, 3))
sketch6.addConstraint(Sketcher.Constraint("Horizontal", 4, 3, 7, 3))
sketch6.addConstraint(Sketcher.Constraint("Vertical", 0, 3, 1, 3))
sketch6.addConstraint(Sketcher.Constraint("Vertical", 2, 3, 3, 3))
sketch6.addConstraint(Sketcher.Constraint("Vertical", 4, 3, 5, 3))
sketch6.addConstraint(Sketcher.Constraint("Vertical", 6, 3, 7, 3))
sketch6.addConstraint(Sketcher.Constraint("Diameter", 0, Q("3.2 mm")))
sketch6.addConstraint(Sketcher.Constraint("DistanceX", 0, 3, -1, 1, Q("45 mm")))
sketch6.addConstraint(Sketcher.Constraint("DistanceX", 2, 3, -1, 1, Q("15 mm")))
sketch6.addConstraint(Sketcher.Constraint("DistanceX", -1, 1, 4, 3, Q("185 mm")))
sketch6.addConstraint(Sketcher.Constraint("DistanceX", -1, 1, 6, 3, Q("215 mm")))
sketch6.addConstraint(Sketcher.Constraint("DistanceY", 0, 3, 1, 3, Q("20 mm")))
sketch6.addConstraint(Sketcher.Constraint("DistanceY", 0, 3, -1, 1, Q("327.5 mm")))
pocket4 = body.newObject("PartDesign::Pocket", "Pocket003")
pocket4.Profile = sketch6
pocket4.Type = "ThroughAll"
pocket4.Reversed = True

# Sketch on XZ plane
sketch7 = body.newObject("Sketcher::SketchObject", "Sketch006")
sketch7.AttachmentSupport = (doc.getObject("XZ_Plane"), [""])
sketch7.MapMode = "FlatFace"
sketch7.AttachmentOffset = App.Placement(App.Vector(0, 0, -3), App.Rotation())
sketch7.addGeometry(Part.Circle(App.Vector(85, -133, 0), App.Vector(0, 0, 1), 1.6), False)
sketch7.addGeometry(Part.Circle(App.Vector(122.5, -117.5, 0), App.Vector(0, 0, 1), 1.6), False)
sketch7.addGeometry(Part.Circle(App.Vector(138, -80, 0), App.Vector(0, 0, 1), 1.6), False)
sketch7.addGeometry(Part.Circle(App.Vector(122.5, -42.5, 0), App.Vector(0, 0, 1), 1.6), False)
sketch7.addGeometry(Part.Circle(App.Vector(85, -27, 0), App.Vector(0, 0, 1), 1.6), False)
sketch7.addGeometry(Part.Circle(App.Vector(47.5, -42.5, 0), App.Vector(0, 0, 1), 1.6), False)
sketch7.addGeometry(Part.Circle(App.Vector(32, -80, 0), App.Vector(0, 0, 1), 1.6), False)
sketch7.addGeometry(Part.Circle(App.Vector(47.5, -117.5, 0), App.Vector(0, 0, 1), 1.6), False)
sketch7.addConstraint(Sketcher.Constraint("Equal", 0, 1))
sketch7.addConstraint(Sketcher.Constraint("Equal", 1, 2))
sketch7.addConstraint(Sketcher.Constraint("Equal", 2, 3))
sketch7.addConstraint(Sketcher.Constraint("Equal", 3, 4))
sketch7.addConstraint(Sketcher.Constraint("Equal", 4, 5))
sketch7.addConstraint(Sketcher.Constraint("Equal", 5, 6))
sketch7.addConstraint(Sketcher.Constraint("Equal", 6, 7))
sketch7.addConstraint(Sketcher.Constraint("Horizontal", 3, 3, 5, 3))
sketch7.addConstraint(Sketcher.Constraint("Horizontal", 2, 3, 6, 3))
sketch7.addConstraint(Sketcher.Constraint("Horizontal", 1, 3, 7, 3))
sketch7.addConstraint(Sketcher.Constraint("Vertical", 1, 3, 3, 3))
sketch7.addConstraint(Sketcher.Constraint("Vertical", 0, 3, 4, 3))
sketch7.addConstraint(Sketcher.Constraint("Vertical", 5, 3, 7, 3))
sketch7.addConstraint(Sketcher.Constraint("Diameter", 0, Q("3.2 mm")))
sketch7.addConstraint(Sketcher.Constraint("DistanceX", -1, 1, 0, 3, Q("85 mm")))
sketch7.addConstraint(Sketcher.Constraint("DistanceY", 0, 3, -1, 1, Q("133 mm")))
sketch7.addConstraint(Sketcher.Constraint("DistanceX", -1, 1, 2, 3, Q("138 mm")))
sketch7.addConstraint(Sketcher.Constraint("DistanceY", 2, 3, -1, 1, Q("80 mm")))
sketch7.addConstraint(Sketcher.Constraint("DistanceY", 4, 3, -1, 1, Q("27 mm")))
sketch7.addConstraint(Sketcher.Constraint("DistanceX", -1, 1, 6, 3, Q("32 mm")))
sketch7.addConstraint(Sketcher.Constraint("DistanceX", -1, 1, 1, 3, Q("122.476659 mm")))
sketch7.addConstraint(Sketcher.Constraint("DistanceY", 1, 3, -1, 1, Q("117.476659 mm")))
sketch7.addConstraint(Sketcher.Constraint("DistanceY", 3, 3, -1, 1, Q("42.523341 mm")))
sketch7.addConstraint(Sketcher.Constraint("DistanceX", -1, 1, 5, 3, Q("47.523341 mm")))
pocket5 = body.newObject("PartDesign::Pocket", "Pocket004")
pocket5.Profile = sketch7
pocket5.Length = 10
pocket5.Reversed = True

doc.recompute()
